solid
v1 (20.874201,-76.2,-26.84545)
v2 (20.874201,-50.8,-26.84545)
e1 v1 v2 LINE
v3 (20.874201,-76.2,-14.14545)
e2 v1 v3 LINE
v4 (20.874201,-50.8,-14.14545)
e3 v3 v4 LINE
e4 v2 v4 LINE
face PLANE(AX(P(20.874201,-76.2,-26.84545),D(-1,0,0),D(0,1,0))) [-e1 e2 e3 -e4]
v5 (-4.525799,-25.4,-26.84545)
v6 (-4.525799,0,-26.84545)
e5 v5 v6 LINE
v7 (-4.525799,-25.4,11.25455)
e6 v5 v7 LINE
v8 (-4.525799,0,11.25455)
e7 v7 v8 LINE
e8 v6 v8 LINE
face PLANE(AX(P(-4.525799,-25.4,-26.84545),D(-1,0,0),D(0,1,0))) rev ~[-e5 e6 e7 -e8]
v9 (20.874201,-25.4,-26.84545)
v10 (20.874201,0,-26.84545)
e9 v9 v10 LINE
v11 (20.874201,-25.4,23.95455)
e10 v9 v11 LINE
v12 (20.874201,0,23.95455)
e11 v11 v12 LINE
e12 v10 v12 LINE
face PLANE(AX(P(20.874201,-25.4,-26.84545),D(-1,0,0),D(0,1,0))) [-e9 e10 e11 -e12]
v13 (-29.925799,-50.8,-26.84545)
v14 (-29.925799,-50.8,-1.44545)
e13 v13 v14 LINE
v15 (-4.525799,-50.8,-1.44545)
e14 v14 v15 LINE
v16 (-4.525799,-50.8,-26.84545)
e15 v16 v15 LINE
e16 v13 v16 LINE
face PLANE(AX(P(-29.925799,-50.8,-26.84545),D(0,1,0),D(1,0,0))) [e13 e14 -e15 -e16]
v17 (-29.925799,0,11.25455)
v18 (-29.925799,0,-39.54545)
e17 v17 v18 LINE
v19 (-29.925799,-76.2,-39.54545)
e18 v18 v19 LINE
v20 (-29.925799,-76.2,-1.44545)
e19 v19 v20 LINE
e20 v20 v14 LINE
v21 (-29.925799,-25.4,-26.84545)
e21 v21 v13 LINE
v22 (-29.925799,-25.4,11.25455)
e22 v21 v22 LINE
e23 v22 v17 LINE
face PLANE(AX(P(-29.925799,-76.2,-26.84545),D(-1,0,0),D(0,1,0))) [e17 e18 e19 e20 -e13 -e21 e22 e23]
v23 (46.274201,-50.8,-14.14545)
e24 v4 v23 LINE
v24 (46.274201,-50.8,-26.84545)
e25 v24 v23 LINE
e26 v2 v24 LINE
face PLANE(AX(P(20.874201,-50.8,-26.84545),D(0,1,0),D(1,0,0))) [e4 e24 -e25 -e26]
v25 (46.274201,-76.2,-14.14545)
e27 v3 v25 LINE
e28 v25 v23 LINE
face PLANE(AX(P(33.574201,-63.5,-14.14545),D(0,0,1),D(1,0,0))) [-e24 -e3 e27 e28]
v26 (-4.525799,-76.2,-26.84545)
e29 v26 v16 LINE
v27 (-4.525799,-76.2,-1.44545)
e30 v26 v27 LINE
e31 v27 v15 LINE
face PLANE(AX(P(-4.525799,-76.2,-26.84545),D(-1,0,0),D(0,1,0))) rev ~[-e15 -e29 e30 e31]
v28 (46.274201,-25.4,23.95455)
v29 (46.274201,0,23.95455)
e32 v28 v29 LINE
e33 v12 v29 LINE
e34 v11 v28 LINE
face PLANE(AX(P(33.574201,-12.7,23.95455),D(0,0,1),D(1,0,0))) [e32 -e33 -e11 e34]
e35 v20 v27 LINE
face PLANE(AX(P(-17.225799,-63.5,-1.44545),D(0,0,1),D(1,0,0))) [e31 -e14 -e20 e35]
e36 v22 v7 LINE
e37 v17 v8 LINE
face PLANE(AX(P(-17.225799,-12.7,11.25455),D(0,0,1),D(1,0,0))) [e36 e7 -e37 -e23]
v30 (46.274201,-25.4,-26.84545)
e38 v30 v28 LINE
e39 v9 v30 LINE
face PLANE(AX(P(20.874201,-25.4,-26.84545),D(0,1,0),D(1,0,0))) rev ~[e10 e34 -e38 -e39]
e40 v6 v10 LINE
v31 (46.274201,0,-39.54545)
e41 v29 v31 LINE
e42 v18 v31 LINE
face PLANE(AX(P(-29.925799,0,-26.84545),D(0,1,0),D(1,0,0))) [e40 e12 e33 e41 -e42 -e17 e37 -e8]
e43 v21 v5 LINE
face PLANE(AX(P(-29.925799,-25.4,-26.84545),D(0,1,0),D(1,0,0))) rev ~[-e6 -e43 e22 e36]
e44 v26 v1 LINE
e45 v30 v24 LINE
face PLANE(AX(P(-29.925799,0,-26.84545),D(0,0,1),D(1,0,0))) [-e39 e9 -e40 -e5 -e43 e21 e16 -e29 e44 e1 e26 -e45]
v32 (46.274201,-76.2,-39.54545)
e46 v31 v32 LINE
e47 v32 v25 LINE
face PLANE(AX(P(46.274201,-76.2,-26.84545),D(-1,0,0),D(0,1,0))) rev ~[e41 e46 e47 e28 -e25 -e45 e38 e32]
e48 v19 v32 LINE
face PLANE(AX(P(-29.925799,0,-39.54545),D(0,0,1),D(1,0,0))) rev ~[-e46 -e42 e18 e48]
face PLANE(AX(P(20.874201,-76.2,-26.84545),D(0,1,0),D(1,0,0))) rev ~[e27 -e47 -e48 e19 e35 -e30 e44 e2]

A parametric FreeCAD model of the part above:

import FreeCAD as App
import Part
import Sketcher
Q = App.Units.Quantity


def add_polygon(sketch, points):
    """Adds a closed chain of lines whose ends are joined by coincident constraints."""
    first, n = sketch.GeometryCount, len(points)
    for a, b in zip(points, points[1:] + points[:1]):
        sketch.addGeometry(Part.LineSegment(App.Vector(*a, 0), App.Vector(*b, 0)), False)
    for i in range(n):
        sketch.addConstraint(Sketcher.Constraint("Coincident", first + i, 2, first + (i + 1) % n, 1))

doc = App.newDocument("Part")
body = doc.addObject("PartDesign::Body", "Body")

sketch1 = body.newObject("Sketcher::SketchObject", "Sketch")
sketch1.AttachmentSupport = (doc.getObject("XZ_Plane"), [""])
sketch1.MapMode = "FlatFace"
add_polygon(sketch1, [(-30, -27), (-30, -40), (46, -40), (46, -27)])
sketch1.addConstraint([
    Sketcher.Constraint("Vertical", 0),
    Sketcher.Constraint("Horizontal", 1),
    Sketcher.Constraint("Vertical", 2),
    Sketcher.Constraint("Horizontal", 3),
    Sketcher.Constraint("DistanceX", 1, 1, 1, 2, Q("3 in")),
    Sketcher.Constraint("DistanceY", 0, 2, 0, 1, Q("0.5 in")),
    Sketcher.Constraint("DistanceX", 0, 2, -1, 1, 29.925799),
    Sketcher.Constraint("DistanceY", 0, 2, -1, 1, 39.54545),
])
pad1 = body.newObject("PartDesign::Pad", "Pad")
pad1.Profile = sketch1
pad1.Length = Q("3 in")

sketch2 = body.newObject("Sketcher::SketchObject", "Sketch001")
sketch2.AttachmentSupport = (doc.getObject("XY_Plane"), [""])
sketch2.MapMode = "FlatFace"
sketch2.AttachmentOffset = App.Placement(App.Vector(0, 0, -26.84545), App.Rotation())
add_polygon(sketch2, [(21, 0), (21, -25), (46, -25), (46, 0)])
sketch2.addConstraint([
    Sketcher.Constraint("Vertical", 0),
    Sketcher.Constraint("Horizontal", 1),
    Sketcher.Constraint("Vertical", 2),
    Sketcher.Constraint("Horizontal", 3),
    Sketcher.Constraint("PointOnObject", 2, 2, -1),
    Sketcher.Constraint("Equal", 3, 0),
    Sketcher.Constraint("DistanceX", 1, 1, 1, 2, Q("1 in")),
    Sketcher.Constraint("DistanceX", -1, 1, 0, 2, 20.874201),
])
pad2 = body.newObject("PartDesign::Pad", "Pad001")
pad2.Profile = sketch2
pad2.Length = Q("2 in")

sketch3 = body.newObject("Sketcher::SketchObject", "Sketch002")
sketch3.AttachmentSupport = (doc.getObject("XY_Plane"), [""])
sketch3.MapMode = "FlatFace"
sketch3.AttachmentOffset = App.Placement(App.Vector(0, 0, -26.84545), App.Rotation())
add_polygon(sketch3, [(-30, 0), (-30, -25), (-5, -25), (-5, 0)])
sketch3.addConstraint([
    Sketcher.Constraint("Vertical", 0),
    Sketcher.Constraint("Horizontal", 1),
    Sketcher.Constraint("Vertical", 2),
    Sketcher.Constraint("Horizontal", 3),
    Sketcher.Constraint("PointOnObject", 2, 2, -1),
    Sketcher.Constraint("Equal", 3, 0),
    Sketcher.Constraint("DistanceX", 1, 1, 1, 2, Q("1 in")),
    Sketcher.Constraint("DistanceX", 0, 2, -1, 1, 29.925799),
])
pad3 = body.newObject("PartDesign::Pad", "Pad002")
pad3.Profile = sketch3
pad3.Length = Q("1.5 in")

sketch4 = body.newObject("Sketcher::SketchObject", "Sketch003")
sketch4.AttachmentSupport = (doc.getObject("XY_Plane"), [""])
sketch4.MapMode = "FlatFace"
sketch4.AttachmentOffset = App.Placement(App.Vector(0, 0, -26.84545), App.Rotation())
add_polygon(sketch4, [(-30, -51), (-30, -76), (-5, -76), (-5, -51)])
sketch4.addConstraint([
    Sketcher.Constraint("Vertical", 0),
    Sketcher.Constraint("Horizontal", 1),
    Sketcher.Constraint("Vertical", 2),
    Sketcher.Constraint("Horizontal", 3),
    Sketcher.Constraint("Equal", 3, 0),
    Sketcher.Constraint("DistanceX", 1, 1, 1, 2, Q("1 in")),
    Sketcher.Constraint("DistanceY", 0, 2, -1, 1, Q("3 in")),
    Sketcher.Constraint("DistanceX", 0, 2, -1, 1, 29.925799),
])
pad4 = body.newObject("PartDesign::Pad", "Pad003")
pad4.Profile = sketch4
pad4.Length = Q("1 in")

sketch5 = body.newObject("Sketcher::SketchObject", "Sketch004")
sketch5.AttachmentSupport = (doc.getObject("XY_Plane"), [""])
sketch5.MapMode = "FlatFace"
sketch5.AttachmentOffset = App.Placement(App.Vector(0, 0, -26.84545), App.Rotation())
add_polygon(sketch5, [(21, -51), (21, -76), (46, -76), (46, -51)])
sketch5.addConstraint([
    Sketcher.Constraint("Vertical", 0),
    Sketcher.Constraint("Horizontal", 1),
    Sketcher.Constraint("Vertical", 2),
    Sketcher.Constraint("Horizontal", 3),
    Sketcher.Constraint("Equal", 3, 0),
    Sketcher.Constraint("DistanceX", 1, 1, 1, 2, Q("1 in")),
    Sketcher.Constraint("DistanceY", 0, 2, -1, 1, Q("3 in")),
    Sketcher.Constraint("DistanceX", -1, 1, 0, 2, 20.874201),
])
pad5 = body.newObject("PartDesign::Pad", "Pad004")
pad5.Profile = sketch5
pad5.Length = Q("0.5 in")

doc.recompute()
